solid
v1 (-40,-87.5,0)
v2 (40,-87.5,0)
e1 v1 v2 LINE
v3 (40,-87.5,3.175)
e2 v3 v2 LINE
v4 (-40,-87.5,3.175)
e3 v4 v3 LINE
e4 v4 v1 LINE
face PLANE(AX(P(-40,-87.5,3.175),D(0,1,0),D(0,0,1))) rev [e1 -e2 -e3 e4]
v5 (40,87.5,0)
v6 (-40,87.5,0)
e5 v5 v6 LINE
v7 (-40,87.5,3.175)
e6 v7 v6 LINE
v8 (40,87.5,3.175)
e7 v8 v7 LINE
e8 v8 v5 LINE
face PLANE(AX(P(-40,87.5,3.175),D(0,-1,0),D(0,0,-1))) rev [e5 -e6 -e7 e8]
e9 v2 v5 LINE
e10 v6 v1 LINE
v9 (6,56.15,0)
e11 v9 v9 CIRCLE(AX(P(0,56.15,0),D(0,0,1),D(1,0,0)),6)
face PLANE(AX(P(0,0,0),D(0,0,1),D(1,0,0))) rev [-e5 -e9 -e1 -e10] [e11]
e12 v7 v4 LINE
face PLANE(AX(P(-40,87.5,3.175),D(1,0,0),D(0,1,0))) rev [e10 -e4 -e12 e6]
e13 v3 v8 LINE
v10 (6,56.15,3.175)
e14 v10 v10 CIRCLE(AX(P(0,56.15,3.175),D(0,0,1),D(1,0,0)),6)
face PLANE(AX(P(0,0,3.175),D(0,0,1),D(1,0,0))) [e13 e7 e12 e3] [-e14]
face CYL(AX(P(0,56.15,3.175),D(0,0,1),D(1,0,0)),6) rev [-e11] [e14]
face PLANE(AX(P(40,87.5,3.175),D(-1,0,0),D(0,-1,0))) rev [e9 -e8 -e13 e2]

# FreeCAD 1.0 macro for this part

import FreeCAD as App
import Part
import Sketcher
from FreeCAD import Vector
Q = App.Units.Quantity

doc = App.newDocument("Part")
body = doc.addObject("PartDesign::Body", "Body")

# Sketch on XY plane
sketch1 = doc.addObject("Sketcher::SketchObject", "Sketch")
body.addObject(sketch1)
sketch1.AttachmentSupport = (doc.XY_Plane, [""])
sketch1.MapMode = "FlatFace"
sketch1.addGeometry([
    Part.LineSegment(Vector(-40, 88, 0), Vector(-40, -88, 0)),
    Part.LineSegment(Vector(-40, -88, 0), Vector(40, -88, 0)),
    Part.LineSegment(Vector(40, -88, 0), Vector(40, 88, 0)),
    Part.LineSegment(Vector(40, 88, 0), Vector(-40, 88, 0)),
], False)
sketch1.addConstraint([
    Sketcher.Constraint("Coincident", 0, 2, 1, 1),
    Sketcher.Constraint("Coincident", 1, 2, 2, 1),
    Sketcher.Constraint("Coincident", 2, 2, 3, 1),
    Sketcher.Constraint("Coincident", 3, 2, 0, 1),
    Sketcher.Constraint("Vertical", 0),
    Sketcher.Constraint("Horizontal", 1),
    Sketcher.Constraint("Vertical", 2),
    Sketcher.Constraint("Horizontal", 3),
    Sketcher.Constraint("Symmetric", 0, 2, 2, 2, -1, 1),
    Sketcher.Constraint("DistanceX", 1, 1, 1, 2, Q("80 mm")),
    Sketcher.Constraint("DistanceY", 0, 2, 0, 1, Q("175 mm")),
])
pad1 = doc.addObject("PartDesign::Pad", "Pad")
body.addObject(pad1)
pad1.Profile = sketch1
pad1.Length = 3.175

# Sketch on XY plane
sketch2 = doc.addObject("Sketcher::SketchObject", "Sketch001")
body.addObject(sketch2)
sketch2.AttachmentSupport = (doc.XY_Plane, [""])
sketch2.MapMode = "FlatFace"
sketch2.AttachmentOffset = App.Placement(Vector(0, 0, 3.175), App.Rotation())
sketch2.addGeometry(Part.Circle(Vector(0, 56, 0), Vector(0, 0, 1), 6), False)
sketch2.addConstraint([
    Sketcher.Constraint("PointOnObject", 0, 3, -2),
    Sketcher.Constraint("Diameter", 0, Q("12 mm")),
    Sketcher.Constraint("DistanceY", -1, 1, 0, 3, Q("56.15 mm")),
])
doc.recompute()
hole = doc.addObject("PartDesign::Hole", "Hole")
body.addObject(hole)
hole.Profile = sketch2
hole.ThreadType = "None"
hole.Diameter = 12
hole.DepthType = "Dimension"
hole.Depth = 3.175
hole.DrillPoint = "Flat"

doc.recompute()
